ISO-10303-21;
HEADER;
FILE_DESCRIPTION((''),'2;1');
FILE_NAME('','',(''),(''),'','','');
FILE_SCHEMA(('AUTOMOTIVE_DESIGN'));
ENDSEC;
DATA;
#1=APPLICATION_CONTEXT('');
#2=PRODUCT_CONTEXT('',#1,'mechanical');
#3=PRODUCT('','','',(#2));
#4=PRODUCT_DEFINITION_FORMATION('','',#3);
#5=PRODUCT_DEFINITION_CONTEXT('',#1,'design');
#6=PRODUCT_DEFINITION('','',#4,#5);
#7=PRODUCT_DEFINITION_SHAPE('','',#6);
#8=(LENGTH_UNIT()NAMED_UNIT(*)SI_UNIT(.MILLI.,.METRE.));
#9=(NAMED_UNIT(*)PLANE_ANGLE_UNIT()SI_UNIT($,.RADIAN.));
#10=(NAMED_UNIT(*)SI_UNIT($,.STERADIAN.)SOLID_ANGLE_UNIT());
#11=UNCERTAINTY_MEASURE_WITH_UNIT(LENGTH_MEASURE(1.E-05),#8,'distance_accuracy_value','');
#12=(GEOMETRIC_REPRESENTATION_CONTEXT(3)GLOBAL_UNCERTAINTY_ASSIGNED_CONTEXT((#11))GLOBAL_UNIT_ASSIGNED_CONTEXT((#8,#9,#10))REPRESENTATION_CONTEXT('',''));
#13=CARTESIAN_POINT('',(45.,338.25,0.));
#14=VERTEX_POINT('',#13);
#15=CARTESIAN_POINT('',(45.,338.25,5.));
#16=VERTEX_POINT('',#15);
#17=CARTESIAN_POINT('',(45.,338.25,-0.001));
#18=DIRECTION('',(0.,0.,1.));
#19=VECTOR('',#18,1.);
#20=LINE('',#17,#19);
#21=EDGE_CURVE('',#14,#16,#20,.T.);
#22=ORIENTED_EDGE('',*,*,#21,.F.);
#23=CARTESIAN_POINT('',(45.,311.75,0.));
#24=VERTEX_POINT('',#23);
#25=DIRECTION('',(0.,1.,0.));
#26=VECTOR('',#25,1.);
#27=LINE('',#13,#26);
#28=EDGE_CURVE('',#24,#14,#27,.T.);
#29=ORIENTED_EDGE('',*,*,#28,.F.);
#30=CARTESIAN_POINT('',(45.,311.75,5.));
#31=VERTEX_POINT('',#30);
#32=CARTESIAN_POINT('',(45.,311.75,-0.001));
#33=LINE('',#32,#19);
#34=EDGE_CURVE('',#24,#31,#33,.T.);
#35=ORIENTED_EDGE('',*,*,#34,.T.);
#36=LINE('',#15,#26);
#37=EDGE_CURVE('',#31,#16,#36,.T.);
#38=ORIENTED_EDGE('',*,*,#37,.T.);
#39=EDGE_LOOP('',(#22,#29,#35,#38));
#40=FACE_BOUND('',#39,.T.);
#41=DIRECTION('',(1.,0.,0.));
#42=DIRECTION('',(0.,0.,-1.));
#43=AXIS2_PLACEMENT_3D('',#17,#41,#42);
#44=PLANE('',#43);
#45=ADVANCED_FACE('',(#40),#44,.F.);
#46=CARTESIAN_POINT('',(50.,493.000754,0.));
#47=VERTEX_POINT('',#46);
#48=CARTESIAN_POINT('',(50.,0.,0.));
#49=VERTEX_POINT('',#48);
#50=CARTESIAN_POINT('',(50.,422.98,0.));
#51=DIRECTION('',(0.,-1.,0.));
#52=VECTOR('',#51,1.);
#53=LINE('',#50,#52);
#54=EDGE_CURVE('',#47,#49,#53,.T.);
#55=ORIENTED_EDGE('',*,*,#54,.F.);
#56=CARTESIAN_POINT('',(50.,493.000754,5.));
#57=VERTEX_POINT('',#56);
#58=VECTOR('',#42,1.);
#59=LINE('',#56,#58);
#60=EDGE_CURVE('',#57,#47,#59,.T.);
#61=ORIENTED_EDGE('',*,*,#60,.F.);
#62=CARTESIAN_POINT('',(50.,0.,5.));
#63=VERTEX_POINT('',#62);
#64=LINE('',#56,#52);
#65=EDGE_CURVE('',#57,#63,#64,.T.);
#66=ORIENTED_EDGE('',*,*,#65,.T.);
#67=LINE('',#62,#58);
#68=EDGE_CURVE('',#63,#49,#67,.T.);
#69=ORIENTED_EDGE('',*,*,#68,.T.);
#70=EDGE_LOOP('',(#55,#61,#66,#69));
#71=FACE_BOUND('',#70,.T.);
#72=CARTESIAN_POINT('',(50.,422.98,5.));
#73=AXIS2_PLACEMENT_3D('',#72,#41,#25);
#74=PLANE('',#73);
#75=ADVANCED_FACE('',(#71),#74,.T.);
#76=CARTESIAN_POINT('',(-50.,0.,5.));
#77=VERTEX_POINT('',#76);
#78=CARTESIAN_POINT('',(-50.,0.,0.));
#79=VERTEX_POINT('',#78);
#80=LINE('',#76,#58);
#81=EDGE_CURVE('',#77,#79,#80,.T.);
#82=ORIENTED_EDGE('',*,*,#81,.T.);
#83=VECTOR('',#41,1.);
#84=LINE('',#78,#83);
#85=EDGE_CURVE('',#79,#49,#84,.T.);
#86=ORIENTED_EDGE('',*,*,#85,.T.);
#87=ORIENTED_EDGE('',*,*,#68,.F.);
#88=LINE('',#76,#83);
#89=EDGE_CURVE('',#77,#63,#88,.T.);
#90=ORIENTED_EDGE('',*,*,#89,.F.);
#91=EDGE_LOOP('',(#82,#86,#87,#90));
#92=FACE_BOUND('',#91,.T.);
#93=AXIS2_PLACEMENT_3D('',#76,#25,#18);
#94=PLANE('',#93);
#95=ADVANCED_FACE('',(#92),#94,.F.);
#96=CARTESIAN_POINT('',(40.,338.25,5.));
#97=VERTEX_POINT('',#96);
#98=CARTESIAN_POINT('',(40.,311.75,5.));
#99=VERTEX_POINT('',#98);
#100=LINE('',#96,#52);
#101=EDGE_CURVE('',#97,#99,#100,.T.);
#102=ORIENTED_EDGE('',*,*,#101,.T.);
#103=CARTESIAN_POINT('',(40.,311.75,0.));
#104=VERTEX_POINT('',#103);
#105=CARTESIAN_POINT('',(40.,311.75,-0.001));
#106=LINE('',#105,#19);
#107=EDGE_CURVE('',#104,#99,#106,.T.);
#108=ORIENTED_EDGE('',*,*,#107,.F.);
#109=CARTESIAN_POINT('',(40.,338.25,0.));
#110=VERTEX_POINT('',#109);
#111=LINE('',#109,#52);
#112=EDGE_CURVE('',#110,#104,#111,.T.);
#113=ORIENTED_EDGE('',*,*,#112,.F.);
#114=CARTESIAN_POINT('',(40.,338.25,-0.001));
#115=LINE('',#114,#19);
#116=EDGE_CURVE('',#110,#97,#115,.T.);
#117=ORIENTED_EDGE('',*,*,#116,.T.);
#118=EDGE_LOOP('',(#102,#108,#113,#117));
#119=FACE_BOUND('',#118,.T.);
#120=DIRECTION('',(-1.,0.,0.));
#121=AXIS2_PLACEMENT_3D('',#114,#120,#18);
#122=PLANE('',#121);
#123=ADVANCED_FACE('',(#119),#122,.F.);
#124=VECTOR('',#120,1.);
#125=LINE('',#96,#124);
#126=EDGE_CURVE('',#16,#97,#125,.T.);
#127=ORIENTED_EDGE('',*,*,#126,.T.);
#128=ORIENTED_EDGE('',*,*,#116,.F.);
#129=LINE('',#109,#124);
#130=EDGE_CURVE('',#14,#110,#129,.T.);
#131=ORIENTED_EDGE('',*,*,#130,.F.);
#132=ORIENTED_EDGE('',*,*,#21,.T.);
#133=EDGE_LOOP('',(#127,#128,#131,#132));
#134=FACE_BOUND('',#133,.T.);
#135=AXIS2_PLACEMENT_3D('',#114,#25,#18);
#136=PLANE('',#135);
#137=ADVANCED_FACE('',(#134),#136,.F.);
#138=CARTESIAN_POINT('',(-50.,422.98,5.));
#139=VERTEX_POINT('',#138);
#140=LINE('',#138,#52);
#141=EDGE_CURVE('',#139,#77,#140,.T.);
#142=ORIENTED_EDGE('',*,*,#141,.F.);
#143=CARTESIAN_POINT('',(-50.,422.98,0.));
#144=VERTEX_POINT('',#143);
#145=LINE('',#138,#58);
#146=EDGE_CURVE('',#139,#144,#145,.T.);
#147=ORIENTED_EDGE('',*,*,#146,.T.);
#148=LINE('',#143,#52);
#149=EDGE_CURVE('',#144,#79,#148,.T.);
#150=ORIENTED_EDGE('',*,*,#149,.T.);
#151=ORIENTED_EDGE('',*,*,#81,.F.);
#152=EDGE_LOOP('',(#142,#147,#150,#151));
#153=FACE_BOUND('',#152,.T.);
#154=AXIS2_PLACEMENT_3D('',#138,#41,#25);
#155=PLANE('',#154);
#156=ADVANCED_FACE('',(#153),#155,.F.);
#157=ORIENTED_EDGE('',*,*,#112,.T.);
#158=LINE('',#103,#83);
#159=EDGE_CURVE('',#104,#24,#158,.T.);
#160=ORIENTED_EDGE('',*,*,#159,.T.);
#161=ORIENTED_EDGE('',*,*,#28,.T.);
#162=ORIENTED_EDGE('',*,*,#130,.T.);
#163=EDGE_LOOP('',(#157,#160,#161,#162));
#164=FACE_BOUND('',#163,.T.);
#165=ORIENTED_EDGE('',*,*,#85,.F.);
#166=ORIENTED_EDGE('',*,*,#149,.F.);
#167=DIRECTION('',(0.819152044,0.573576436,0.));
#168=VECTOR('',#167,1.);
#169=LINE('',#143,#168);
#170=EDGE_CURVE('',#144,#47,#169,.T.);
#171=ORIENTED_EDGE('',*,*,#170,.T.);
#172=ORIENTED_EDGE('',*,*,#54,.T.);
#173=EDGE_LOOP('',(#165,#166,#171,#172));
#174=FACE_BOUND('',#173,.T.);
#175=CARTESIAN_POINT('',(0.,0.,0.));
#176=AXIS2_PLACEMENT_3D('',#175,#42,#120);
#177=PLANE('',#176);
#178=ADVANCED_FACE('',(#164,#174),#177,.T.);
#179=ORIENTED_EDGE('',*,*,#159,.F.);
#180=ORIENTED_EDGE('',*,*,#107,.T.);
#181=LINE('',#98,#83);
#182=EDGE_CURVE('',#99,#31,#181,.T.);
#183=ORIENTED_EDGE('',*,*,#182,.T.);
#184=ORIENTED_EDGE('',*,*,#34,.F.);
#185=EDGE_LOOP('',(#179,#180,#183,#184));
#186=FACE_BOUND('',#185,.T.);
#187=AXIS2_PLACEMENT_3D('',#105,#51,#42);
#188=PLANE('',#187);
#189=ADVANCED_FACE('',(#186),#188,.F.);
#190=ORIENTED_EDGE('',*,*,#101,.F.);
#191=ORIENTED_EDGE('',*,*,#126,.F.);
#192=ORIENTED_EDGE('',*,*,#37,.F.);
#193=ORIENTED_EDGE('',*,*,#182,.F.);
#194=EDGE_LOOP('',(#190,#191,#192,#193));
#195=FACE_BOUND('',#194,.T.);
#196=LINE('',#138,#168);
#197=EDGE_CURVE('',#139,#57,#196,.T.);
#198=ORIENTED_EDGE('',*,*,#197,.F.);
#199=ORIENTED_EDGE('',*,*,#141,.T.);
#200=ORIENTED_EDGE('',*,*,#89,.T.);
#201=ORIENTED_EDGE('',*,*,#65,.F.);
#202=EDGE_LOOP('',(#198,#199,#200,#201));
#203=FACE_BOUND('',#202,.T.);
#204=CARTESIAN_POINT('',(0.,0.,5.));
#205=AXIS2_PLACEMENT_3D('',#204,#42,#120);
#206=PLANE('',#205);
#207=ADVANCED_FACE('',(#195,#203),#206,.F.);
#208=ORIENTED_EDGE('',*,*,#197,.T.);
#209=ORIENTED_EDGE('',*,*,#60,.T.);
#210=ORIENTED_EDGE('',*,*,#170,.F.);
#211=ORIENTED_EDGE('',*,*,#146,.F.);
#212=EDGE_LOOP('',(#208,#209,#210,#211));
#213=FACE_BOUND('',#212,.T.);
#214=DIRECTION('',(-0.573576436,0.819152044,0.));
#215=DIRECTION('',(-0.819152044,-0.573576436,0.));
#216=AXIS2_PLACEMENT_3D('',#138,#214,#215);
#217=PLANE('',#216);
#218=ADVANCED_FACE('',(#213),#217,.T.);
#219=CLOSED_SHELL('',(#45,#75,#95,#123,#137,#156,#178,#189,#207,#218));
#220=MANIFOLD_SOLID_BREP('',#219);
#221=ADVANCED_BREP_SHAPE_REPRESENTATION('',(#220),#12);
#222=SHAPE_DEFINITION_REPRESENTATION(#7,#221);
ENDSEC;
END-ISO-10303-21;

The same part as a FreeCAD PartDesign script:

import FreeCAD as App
import Part
import Sketcher
from FreeCAD import Vector
Q = App.Units.Quantity


def add_polygon(sketch, points):
    """Adds a closed chain of lines whose ends are joined by coincident constraints."""
    first, n = sketch.GeometryCount, len(points)
    for a, b in zip(points, points[1:] + points[:1]):
        sketch.addGeometry(Part.LineSegment(App.Vector(*a, 0), App.Vector(*b, 0)), False)
    for i in range(n):
        sketch.addConstraint(Sketcher.Constraint("Coincident", first + i, 2, first + (i + 1) % n, 1))

doc = App.newDocument("Part")
params = doc.addObject("Spreadsheet::Sheet", "Params")
for row, (alias, value) in enumerate([
    ("sketch1_width", "100 mm"),
    ("sketch1_height", "422.98 mm"),
    ("pad1_length", "5 mm"),
    ("sketch2_width", "5 mm"),
    ("sketch2_height", "26.5 mm"),
], start=1):
    params.set(f"A{row}", alias)
    params.set(f"B{row}", "=" + value)
    params.setAlias(f"B{row}", alias)

body = doc.addObject("PartDesign::Body", "Body")

# Sketch on XY plane
sketch1 = body.newObject("Sketcher::SketchObject", "Sketch")
sketch1.AttachmentSupport = (doc.getObject("XY_Plane"), [""])
sketch1.MapMode = "FlatFace"
add_polygon(sketch1, [(-50, 422.98), (-50, 0), (50, 0), (50, 493.000754)])  # lines 0-3
sketch1.addConstraint(Sketcher.Constraint("Vertical", 0))
sketch1.addConstraint(Sketcher.Constraint("Horizontal", 1))
sketch1.addConstraint(Sketcher.Constraint("Vertical", 2))
sketch1.addConstraint(Sketcher.Constraint("Symmetric", 0, 2, 1, 2, -1, 1))
sketch1.addConstraint(Sketcher.Constraint("DistanceX", 1, 1, 1, 2, Q("100 mm")))
sketch1.addConstraint(Sketcher.Constraint("Angle", 3, Q("-145 deg")))
sketch1.addConstraint(Sketcher.Constraint("DistanceY", 0, 2, 0, 1, Q("422.98 mm")))
sketch1.setExpression("Constraints[8]", "Params.sketch1_width")
sketch1.setExpression("Constraints[10]", "Params.sketch1_height")
pad1 = body.newObject("PartDesign::Pad", "Pad")
pad1.Profile = sketch1
pad1.setExpression("Length", "Params.pad1_length")

# Sketch on XY plane
sketch2 = body.newObject("Sketcher::SketchObject", "Sketch001")
sketch2.AttachmentSupport = (doc.getObject("XY_Plane"), [""])
sketch2.MapMode = "FlatFace"
sketch2.AttachmentOffset = App.Placement(Vector(0, 0, 5), App.Rotation())
add_polygon(sketch2, [(40, 338.25), (40, 311.75), (45, 311.75), (45, 338.25)])  # lines 0-3
sketch2.addConstraint(Sketcher.Constraint("Vertical", 0))
sketch2.addConstraint(Sketcher.Constraint("Horizontal", 1))
sketch2.addConstraint(Sketcher.Constraint("Vertical", 2))
sketch2.addConstraint(Sketcher.Constraint("Horizontal", 3))
sketch2.addConstraint(Sketcher.Constraint("DistanceX", 1, 1, 1, 2, Q("5 mm")))
sketch2.addConstraint(Sketcher.Constraint("DistanceY", 0, 2, 0, 1, Q("26.5 mm")))
sketch2.addConstraint(Sketcher.Constraint("DistanceX", -1, 1, 0, 2, Q("40 mm")))
sketch2.addConstraint(Sketcher.Constraint("DistanceY", -1, 1, 0, 2, Q("311.75 mm")))
sketch2.setExpression("Constraints[8]", "Params.sketch2_width")
sketch2.setExpression("Constraints[9]", "Params.sketch2_height")
pocket1 = body.newObject("PartDesign::Pocket", "Pocket")
pocket1.Profile = sketch2
pocket1.Type = "UpToFirst"

doc.recompute()
